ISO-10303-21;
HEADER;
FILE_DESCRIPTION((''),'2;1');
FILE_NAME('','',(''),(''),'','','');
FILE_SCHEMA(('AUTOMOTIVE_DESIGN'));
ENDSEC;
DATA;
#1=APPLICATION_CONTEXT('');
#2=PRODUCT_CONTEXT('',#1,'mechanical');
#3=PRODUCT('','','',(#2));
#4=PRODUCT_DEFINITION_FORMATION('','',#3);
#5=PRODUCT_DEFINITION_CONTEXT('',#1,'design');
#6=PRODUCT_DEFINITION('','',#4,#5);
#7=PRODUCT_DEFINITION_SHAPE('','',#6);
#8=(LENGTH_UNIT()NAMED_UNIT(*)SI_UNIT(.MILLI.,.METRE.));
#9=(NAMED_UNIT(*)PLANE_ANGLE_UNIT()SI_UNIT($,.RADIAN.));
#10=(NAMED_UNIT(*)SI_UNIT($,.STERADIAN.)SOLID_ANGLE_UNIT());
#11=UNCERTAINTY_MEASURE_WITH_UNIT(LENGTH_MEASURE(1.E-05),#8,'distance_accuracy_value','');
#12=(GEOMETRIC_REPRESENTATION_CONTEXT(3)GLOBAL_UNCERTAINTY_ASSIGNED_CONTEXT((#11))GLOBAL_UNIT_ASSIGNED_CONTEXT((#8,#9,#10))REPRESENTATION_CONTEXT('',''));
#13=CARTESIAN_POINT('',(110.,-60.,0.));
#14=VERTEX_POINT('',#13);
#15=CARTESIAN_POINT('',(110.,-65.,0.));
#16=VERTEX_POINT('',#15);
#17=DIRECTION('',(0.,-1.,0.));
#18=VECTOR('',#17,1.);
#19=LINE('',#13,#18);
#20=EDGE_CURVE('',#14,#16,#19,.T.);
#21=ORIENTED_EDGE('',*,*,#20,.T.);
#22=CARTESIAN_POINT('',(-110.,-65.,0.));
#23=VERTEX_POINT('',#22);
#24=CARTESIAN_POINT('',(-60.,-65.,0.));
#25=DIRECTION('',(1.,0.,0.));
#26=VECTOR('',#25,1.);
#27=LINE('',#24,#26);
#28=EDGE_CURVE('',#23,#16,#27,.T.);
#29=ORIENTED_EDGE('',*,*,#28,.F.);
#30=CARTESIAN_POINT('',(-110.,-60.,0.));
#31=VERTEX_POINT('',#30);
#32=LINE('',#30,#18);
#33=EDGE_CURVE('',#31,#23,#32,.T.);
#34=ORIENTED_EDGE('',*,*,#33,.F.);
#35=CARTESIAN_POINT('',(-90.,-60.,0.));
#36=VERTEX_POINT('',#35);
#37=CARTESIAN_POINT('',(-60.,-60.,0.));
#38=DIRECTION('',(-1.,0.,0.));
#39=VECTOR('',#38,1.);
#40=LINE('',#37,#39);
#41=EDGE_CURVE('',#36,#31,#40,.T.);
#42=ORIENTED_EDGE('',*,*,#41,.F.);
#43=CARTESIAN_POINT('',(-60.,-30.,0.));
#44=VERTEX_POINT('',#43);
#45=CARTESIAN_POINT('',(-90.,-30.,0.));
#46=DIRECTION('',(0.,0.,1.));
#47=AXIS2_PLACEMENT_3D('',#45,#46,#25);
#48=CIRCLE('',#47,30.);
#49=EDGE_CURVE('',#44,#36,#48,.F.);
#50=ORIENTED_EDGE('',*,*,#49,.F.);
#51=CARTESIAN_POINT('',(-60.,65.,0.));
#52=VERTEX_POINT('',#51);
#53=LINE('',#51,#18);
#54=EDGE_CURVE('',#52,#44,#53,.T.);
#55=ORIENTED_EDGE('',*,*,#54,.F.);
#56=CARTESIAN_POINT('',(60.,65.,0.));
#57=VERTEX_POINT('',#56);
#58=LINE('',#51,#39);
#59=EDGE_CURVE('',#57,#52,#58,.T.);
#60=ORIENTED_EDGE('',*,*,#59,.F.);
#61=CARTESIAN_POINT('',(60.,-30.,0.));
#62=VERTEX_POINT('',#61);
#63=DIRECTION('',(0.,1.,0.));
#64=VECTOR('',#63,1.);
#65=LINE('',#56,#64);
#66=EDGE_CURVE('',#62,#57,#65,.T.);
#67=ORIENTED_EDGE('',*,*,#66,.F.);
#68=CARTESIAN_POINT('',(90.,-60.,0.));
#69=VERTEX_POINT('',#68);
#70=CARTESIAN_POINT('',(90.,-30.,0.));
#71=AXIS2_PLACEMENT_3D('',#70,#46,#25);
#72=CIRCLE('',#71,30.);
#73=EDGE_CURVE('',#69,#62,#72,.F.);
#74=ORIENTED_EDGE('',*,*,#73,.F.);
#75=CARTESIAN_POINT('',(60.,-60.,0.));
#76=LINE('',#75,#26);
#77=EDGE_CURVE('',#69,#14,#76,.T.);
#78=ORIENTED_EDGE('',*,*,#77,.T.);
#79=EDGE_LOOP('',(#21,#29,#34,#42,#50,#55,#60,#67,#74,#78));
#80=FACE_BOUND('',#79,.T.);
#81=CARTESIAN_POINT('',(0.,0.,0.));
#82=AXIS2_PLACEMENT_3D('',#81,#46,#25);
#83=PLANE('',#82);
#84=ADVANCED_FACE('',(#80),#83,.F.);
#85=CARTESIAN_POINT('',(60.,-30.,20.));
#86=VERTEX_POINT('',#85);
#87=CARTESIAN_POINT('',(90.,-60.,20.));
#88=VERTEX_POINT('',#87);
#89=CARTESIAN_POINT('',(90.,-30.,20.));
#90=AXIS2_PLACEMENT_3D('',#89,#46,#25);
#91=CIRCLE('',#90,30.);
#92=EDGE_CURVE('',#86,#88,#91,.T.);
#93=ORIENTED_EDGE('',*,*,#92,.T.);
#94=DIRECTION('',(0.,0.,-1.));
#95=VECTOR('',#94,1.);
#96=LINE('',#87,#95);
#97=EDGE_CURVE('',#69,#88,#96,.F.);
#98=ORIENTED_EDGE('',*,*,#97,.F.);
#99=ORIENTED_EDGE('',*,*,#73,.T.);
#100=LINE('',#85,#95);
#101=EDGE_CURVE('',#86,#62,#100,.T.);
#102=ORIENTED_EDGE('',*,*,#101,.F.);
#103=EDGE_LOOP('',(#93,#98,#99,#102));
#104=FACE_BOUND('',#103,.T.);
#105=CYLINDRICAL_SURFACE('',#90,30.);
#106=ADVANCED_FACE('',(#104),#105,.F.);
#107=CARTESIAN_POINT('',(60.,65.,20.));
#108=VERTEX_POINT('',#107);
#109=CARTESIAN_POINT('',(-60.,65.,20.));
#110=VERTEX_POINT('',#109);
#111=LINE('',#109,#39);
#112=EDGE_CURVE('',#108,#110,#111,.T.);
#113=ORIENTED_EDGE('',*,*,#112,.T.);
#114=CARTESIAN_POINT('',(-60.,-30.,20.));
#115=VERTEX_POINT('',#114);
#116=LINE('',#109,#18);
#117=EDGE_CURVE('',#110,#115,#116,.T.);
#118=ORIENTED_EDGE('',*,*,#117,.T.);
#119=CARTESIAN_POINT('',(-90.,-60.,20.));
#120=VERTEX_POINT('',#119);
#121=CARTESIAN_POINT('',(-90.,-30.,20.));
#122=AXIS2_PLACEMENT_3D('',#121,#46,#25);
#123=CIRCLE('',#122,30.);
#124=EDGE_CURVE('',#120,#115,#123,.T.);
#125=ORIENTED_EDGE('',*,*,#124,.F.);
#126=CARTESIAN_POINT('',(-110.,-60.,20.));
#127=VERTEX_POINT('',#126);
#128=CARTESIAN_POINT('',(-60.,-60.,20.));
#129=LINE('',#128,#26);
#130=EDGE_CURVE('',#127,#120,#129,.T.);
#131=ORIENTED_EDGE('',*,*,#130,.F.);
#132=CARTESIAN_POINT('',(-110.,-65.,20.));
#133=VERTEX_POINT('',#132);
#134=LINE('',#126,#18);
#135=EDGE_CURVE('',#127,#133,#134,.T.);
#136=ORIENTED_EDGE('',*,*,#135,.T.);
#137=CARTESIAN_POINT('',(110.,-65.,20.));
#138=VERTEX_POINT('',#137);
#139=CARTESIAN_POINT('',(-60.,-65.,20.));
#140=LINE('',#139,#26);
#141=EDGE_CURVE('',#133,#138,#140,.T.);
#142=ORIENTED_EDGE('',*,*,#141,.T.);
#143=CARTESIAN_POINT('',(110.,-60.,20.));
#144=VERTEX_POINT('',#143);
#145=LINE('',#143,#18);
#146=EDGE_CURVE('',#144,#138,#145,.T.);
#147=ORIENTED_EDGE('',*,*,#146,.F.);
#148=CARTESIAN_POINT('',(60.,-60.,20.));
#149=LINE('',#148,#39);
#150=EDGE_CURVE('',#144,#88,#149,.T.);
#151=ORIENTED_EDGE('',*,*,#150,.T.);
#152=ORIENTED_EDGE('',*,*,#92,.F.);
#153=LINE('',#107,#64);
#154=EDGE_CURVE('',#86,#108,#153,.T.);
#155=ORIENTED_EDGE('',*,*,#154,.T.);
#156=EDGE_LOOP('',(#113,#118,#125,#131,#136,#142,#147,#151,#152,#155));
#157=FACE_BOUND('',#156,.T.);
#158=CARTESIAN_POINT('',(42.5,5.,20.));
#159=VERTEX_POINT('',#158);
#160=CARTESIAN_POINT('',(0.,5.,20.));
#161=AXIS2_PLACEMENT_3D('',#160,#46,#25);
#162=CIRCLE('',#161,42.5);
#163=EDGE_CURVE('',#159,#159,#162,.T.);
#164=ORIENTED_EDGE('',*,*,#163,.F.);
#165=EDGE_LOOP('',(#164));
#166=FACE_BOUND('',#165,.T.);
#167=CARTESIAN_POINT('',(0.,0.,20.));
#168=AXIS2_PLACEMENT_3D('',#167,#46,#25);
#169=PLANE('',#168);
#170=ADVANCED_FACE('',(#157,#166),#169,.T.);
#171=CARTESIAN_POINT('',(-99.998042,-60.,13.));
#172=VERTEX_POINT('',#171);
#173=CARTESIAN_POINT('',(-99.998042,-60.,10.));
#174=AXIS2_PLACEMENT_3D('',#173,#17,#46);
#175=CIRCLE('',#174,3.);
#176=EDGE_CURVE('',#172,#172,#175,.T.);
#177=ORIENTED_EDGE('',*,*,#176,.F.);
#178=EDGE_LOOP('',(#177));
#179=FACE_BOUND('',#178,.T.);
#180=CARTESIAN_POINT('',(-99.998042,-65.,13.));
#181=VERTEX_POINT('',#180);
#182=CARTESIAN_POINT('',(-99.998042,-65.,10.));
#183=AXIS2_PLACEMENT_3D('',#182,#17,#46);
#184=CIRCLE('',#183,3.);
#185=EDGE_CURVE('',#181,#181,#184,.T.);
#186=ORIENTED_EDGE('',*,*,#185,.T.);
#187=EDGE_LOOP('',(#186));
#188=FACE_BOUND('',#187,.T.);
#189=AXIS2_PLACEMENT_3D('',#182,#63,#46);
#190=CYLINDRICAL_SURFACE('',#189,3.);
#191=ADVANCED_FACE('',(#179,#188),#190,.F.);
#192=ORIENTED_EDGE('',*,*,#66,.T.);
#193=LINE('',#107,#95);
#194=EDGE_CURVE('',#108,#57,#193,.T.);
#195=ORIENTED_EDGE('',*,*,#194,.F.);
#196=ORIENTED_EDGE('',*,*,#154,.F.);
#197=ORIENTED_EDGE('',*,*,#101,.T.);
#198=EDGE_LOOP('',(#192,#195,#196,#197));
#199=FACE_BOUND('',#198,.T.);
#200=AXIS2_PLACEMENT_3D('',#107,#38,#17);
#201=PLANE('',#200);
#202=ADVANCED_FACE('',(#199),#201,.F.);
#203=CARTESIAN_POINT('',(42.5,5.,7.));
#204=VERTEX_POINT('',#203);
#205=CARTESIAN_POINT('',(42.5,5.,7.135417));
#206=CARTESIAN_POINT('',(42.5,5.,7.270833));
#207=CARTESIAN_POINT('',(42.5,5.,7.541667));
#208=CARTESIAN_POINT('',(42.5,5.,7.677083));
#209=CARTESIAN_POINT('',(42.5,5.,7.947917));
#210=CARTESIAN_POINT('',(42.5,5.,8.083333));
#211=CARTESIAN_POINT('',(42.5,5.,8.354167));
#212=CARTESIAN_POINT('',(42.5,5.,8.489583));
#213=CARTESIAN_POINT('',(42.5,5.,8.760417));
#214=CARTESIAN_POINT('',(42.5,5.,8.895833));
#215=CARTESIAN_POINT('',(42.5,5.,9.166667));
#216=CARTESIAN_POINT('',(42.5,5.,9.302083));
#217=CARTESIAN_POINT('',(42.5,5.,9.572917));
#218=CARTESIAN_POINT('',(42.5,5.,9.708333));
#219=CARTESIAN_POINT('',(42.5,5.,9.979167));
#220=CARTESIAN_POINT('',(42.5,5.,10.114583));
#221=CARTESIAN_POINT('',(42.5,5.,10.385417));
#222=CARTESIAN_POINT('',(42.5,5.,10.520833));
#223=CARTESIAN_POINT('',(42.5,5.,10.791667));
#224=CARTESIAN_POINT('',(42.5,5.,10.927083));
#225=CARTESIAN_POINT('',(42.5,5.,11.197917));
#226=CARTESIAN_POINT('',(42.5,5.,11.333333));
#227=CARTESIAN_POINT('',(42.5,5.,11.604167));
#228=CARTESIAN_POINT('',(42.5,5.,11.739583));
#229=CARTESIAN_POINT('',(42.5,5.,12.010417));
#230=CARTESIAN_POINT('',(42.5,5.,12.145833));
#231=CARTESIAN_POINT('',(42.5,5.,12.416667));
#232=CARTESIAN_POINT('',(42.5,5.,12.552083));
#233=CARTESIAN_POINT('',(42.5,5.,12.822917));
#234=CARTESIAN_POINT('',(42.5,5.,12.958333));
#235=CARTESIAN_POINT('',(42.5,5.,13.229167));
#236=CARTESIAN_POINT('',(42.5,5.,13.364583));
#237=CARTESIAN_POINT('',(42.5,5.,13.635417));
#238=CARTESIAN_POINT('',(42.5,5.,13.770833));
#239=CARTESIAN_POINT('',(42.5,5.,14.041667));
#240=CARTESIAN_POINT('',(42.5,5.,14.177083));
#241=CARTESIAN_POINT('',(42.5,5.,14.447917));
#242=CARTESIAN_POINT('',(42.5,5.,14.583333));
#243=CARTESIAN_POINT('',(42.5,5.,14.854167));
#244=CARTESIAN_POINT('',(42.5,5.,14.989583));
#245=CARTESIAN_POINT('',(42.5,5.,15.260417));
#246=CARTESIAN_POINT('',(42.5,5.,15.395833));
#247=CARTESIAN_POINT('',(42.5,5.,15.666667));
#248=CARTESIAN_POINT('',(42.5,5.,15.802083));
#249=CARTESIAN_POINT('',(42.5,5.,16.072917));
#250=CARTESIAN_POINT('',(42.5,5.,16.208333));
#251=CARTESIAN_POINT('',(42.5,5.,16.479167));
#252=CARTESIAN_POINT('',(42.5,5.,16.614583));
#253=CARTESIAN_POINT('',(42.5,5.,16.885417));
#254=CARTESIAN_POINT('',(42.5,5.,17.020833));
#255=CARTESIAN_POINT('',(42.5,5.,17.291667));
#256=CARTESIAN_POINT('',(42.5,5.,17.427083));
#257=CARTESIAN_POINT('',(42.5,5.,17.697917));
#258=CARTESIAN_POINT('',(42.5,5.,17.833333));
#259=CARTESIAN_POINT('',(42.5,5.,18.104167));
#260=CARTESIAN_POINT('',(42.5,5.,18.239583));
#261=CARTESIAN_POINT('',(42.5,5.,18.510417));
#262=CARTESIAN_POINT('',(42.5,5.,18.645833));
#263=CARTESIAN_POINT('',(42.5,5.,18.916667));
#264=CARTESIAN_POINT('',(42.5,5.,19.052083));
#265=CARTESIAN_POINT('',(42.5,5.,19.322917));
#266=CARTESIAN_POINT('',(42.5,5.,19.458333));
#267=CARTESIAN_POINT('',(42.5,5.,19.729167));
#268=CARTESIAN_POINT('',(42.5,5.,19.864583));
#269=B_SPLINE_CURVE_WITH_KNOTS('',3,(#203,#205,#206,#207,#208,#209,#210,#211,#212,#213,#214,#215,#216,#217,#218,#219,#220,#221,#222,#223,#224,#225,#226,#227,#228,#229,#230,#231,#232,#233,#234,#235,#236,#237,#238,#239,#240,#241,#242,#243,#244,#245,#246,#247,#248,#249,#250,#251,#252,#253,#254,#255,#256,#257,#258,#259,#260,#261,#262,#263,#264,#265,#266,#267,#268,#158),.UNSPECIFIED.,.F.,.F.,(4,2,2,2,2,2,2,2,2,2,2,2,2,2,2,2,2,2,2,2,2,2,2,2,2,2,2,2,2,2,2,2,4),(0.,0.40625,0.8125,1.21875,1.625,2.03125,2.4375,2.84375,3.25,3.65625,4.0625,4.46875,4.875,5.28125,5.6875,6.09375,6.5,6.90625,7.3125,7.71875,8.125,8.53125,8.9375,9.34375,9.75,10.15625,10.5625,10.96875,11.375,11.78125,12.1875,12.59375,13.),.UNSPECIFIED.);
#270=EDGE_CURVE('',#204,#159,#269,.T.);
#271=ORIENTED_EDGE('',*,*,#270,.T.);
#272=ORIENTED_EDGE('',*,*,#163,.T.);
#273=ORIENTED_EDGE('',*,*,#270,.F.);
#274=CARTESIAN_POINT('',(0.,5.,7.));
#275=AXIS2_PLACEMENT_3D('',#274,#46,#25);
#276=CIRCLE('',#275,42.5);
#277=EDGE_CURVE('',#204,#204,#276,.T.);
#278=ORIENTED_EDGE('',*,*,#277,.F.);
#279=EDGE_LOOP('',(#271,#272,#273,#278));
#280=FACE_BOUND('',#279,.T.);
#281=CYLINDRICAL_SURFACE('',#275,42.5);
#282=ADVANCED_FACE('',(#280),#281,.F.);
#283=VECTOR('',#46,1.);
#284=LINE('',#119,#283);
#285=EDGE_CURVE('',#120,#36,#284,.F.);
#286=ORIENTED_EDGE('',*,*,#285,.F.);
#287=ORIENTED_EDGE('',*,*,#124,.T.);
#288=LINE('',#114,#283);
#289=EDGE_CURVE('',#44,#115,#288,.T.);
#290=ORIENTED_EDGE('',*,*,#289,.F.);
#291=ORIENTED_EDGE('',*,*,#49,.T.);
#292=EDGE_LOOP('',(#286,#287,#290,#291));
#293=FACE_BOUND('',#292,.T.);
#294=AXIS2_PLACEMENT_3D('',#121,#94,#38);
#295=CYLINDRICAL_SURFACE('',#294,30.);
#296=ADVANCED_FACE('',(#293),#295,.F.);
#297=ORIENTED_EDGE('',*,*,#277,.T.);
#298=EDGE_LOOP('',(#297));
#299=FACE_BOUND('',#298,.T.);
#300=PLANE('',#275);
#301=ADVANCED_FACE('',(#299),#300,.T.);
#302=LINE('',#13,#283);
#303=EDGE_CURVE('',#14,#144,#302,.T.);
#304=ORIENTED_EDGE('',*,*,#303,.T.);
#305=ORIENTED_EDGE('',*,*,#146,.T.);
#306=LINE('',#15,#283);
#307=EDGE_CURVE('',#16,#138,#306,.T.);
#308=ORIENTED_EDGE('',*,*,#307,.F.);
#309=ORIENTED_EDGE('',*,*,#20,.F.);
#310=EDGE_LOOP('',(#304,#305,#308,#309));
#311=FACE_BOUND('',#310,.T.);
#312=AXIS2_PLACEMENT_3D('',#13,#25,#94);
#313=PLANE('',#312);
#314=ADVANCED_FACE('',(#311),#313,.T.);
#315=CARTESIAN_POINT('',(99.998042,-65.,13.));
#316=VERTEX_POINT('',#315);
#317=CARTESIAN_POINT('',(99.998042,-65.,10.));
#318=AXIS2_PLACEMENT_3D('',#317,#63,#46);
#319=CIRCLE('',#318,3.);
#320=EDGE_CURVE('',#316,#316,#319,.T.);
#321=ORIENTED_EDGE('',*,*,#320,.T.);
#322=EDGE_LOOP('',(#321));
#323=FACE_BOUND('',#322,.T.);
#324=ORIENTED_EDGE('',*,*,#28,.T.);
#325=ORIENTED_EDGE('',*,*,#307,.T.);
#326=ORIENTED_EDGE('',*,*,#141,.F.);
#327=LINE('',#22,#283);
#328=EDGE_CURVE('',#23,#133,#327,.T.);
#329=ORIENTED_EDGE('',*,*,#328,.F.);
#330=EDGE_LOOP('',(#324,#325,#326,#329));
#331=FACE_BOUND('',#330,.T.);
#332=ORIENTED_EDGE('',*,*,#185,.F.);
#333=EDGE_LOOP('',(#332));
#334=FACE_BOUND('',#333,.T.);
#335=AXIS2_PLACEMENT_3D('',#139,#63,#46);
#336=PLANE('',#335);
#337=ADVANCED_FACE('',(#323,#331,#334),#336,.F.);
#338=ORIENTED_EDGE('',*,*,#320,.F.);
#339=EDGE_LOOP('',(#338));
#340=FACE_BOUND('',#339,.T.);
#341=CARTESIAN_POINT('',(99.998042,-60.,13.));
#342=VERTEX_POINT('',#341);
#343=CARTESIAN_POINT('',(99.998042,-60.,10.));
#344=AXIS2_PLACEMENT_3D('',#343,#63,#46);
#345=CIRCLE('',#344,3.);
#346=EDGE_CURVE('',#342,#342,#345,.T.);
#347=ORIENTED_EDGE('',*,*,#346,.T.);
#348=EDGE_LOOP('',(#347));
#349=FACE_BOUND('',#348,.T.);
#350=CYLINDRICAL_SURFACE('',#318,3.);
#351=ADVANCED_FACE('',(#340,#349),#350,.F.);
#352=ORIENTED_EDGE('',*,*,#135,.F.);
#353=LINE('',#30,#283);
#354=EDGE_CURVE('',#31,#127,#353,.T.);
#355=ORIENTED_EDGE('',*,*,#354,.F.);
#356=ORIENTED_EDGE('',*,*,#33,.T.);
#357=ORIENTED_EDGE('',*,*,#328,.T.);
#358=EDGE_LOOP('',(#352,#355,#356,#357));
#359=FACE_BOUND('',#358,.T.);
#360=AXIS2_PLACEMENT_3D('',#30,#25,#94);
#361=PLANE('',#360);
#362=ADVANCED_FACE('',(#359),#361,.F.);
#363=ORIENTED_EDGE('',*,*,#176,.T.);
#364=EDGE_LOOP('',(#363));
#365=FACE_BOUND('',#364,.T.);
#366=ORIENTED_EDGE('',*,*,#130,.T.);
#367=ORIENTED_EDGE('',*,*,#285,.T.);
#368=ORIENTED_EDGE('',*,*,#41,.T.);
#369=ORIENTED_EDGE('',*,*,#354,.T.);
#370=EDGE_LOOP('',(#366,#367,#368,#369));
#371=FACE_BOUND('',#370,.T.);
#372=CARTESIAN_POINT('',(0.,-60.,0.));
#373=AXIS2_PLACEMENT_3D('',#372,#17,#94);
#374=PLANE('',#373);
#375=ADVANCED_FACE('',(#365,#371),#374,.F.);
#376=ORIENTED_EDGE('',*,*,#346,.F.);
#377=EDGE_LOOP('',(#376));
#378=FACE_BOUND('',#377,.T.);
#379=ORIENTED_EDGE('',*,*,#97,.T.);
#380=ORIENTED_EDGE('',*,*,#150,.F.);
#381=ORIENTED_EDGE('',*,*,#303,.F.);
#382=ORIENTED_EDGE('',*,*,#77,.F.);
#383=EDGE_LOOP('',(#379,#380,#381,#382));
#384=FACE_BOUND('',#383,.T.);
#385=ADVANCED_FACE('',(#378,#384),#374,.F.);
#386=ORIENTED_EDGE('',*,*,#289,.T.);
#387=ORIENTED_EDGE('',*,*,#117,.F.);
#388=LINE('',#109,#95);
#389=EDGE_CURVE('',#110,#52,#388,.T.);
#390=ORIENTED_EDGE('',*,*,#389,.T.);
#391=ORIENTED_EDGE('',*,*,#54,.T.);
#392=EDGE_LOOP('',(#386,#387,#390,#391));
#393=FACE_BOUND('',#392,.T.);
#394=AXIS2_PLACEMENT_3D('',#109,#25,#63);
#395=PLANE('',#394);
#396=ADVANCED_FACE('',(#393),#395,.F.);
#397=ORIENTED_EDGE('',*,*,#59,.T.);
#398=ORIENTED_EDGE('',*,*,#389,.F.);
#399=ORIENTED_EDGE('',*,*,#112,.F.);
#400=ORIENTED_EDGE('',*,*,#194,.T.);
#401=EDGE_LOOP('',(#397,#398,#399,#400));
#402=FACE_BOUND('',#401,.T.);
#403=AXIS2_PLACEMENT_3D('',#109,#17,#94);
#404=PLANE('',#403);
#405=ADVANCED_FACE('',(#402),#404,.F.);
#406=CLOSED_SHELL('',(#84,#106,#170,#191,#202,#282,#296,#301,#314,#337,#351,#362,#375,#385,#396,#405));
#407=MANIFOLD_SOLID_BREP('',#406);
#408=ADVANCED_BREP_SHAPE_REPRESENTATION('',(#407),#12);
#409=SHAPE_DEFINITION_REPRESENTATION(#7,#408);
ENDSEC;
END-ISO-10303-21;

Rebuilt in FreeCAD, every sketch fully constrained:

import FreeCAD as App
import Part
import Sketcher
from FreeCAD import Vector
Q = App.Units.Quantity


def edges_at(feature, points):
    """Names of the edges that pass closest to the given points."""
    edges = feature.Shape.Edges
    near = lambda p: min(range(len(edges)), key=lambda i: edges[i].distToShape(Part.Vertex(*p))[0])
    return sorted({f"Edge{near(p) + 1}" for p in points})

doc = App.newDocument("Part")
body = doc.addObject("PartDesign::Body", "Body")

# Sketch on XY plane
sketch1 = doc.addObject("Sketcher::SketchObject", "Sketch")
body.addObject(sketch1)
sketch1.AttachmentSupport = (doc.XY_Plane, [""])
sketch1.MapMode = "FlatFace"
sketch1.addGeometry(Part.LineSegment(Vector(-60, 65, 0), Vector(-60, -65, 0)), False)
sketch1.addGeometry(Part.LineSegment(Vector(-60, -65, 0), Vector(60, -65, 0)), False)
sketch1.addGeometry(Part.LineSegment(Vector(60, -65, 0), Vector(60, 65, 0)), False)
sketch1.addGeometry(Part.LineSegment(Vector(60, 65, 0), Vector(-60, 65, 0)), False)
sketch1.addConstraint(Sketcher.Constraint("Coincident", 0, 2, 1, 1))
sketch1.addConstraint(Sketcher.Constraint("Coincident", 1, 2, 2, 1))
sketch1.addConstraint(Sketcher.Constraint("Coincident", 2, 2, 3, 1))
sketch1.addConstraint(Sketcher.Constraint("Coincident", 3, 2, 0, 1))
sketch1.addConstraint(Sketcher.Constraint("Vertical", 0))
sketch1.addConstraint(Sketcher.Constraint("Horizontal", 1))
sketch1.addConstraint(Sketcher.Constraint("Vertical", 2))
sketch1.addConstraint(Sketcher.Constraint("Horizontal", 3))
sketch1.addConstraint(Sketcher.Constraint("Symmetric", 0, 2, 2, 2, -1, 1))
sketch1.addConstraint(Sketcher.Constraint("DistanceX", 1, 1, 1, 2, Q("120 mm")))
sketch1.addConstraint(Sketcher.Constraint("DistanceY", 0, 2, 0, 1, Q("130 mm")))
pad1 = doc.addObject("PartDesign::Pad", "Pad")
body.addObject(pad1)
pad1.Profile = sketch1
pad1.Length = 20

# Sketch on XY plane
sketch2 = doc.addObject("Sketcher::SketchObject", "Sketch001")
body.addObject(sketch2)
sketch2.AttachmentSupport = (doc.XY_Plane, [""])
sketch2.MapMode = "FlatFace"
sketch2.AttachmentOffset = App.Placement(Vector(0, 0, 20), App.Rotation())
sketch2.addGeometry(Part.Circle(Vector(0, 5, 0), Vector(0, 0, 1), 42), False)
sketch2.addConstraint(Sketcher.Constraint("PointOnObject", 0, 3, -2))
sketch2.addConstraint(Sketcher.Constraint("Diameter", 0, Q("85 mm")))
sketch2.addConstraint(Sketcher.Constraint("DistanceY", -1, 1, 0, 3, Q("5 mm")))
pocket1 = doc.addObject("PartDesign::Pocket", "Pocket")
body.addObject(pocket1)
pocket1.Profile = sketch2
pocket1.Length = 13

# Sketch on XZ plane
sketch3 = doc.addObject("Sketcher::SketchObject", "Sketch002")
body.addObject(sketch3)
sketch3.AttachmentSupport = (doc.XZ_Plane, [""])
sketch3.MapMode = "FlatFace"
sketch3.AttachmentOffset = App.Placement(Vector(0, 0, 65), App.Rotation())
sketch3.addGeometry(Part.LineSegment(Vector(60, 20, 0), Vector(60, 0, 0)), False)
sketch3.addGeometry(Part.LineSegment(Vector(60, 0, 0), Vector(110, 0, 0)), False)
sketch3.addGeometry(Part.LineSegment(Vector(110, 0, 0), Vector(110, 20, 0)), False)
sketch3.addGeometry(Part.LineSegment(Vector(110, 20, 0), Vector(60, 20, 0)), False)
sketch3.addConstraint(Sketcher.Constraint("Coincident", 0, 2, 1, 1))
sketch3.addConstraint(Sketcher.Constraint("Coincident", 1, 2, 2, 1))
sketch3.addConstraint(Sketcher.Constraint("Coincident", 2, 2, 3, 1))
sketch3.addConstraint(Sketcher.Constraint("Coincident", 3, 2, 0, 1))
sketch3.addConstraint(Sketcher.Constraint("Vertical", 0))
sketch3.addConstraint(Sketcher.Constraint("Horizontal", 1))
sketch3.addConstraint(Sketcher.Constraint("Vertical", 2))
sketch3.addConstraint(Sketcher.Constraint("Horizontal", 3))
sketch3.addConstraint(Sketcher.Constraint("PointOnObject", 0, 2, -1))
sketch3.addConstraint(Sketcher.Constraint("DistanceX", 1, 1, 1, 2, Q("50 mm")))
sketch3.addConstraint(Sketcher.Constraint("DistanceY", 0, 2, 0, 1, Q("20 mm")))
sketch3.addConstraint(Sketcher.Constraint("DistanceX", -1, 1, 0, 2, Q("60 mm")))
pad2 = doc.addObject("PartDesign::Pad", "Pad001")
body.addObject(pad2)
pad2.Profile = sketch3
pad2.Length = 5
pad2.Reversed = True
doc.recompute()

fillet = doc.addObject("PartDesign::Fillet", "Fillet")
body.addObject(fillet)
fillet.Base = (pad2, edges_at(pad2, [(60, -60, 10)]))
fillet.Radius = 30
doc.recompute()

mirrored = doc.addObject("PartDesign::Mirrored", "Mirrored")
body.addObject(mirrored)
mirrored.Originals = [pad2]
mirrored.MirrorPlane = (doc.YZ_Plane, [""])
body.Tip = mirrored
doc.recompute()

fillet2 = doc.addObject("PartDesign::Fillet", "Fillet001")
body.addObject(fillet2)
fillet2.Base = (mirrored, edges_at(mirrored, [(-60, -60, 10)]))
fillet2.Radius = 30

# Sketch on XZ plane
sketch4 = doc.addObject("Sketcher::SketchObject", "Sketch003")
body.addObject(sketch4)
sketch4.AttachmentSupport = (doc.XZ_Plane, [""])
sketch4.MapMode = "FlatFace"
sketch4.AttachmentOffset = App.Placement(Vector(0, 0, 60), App.Rotation())
sketch4.addGeometry(Part.Circle(Vector(100, 10, 0), Vector(0, 0, 1), 3), False)
sketch4.addConstraint(Sketcher.Constraint("Diameter", 0, Q("6 mm")))
sketch4.addConstraint(Sketcher.Constraint("DistanceY", -1, 1, 0, 3, Q("10 mm")))
sketch4.addConstraint(Sketcher.Constraint("DistanceX", -1, 1, 0, 3, Q("99.998042 mm")))
pocket2 = doc.addObject("PartDesign::Pocket", "Pocket001")
body.addObject(pocket2)
pocket2.Profile = sketch4
pocket2.Type = "ThroughAll"
pocket2.Reversed = True
doc.recompute()

mirrored2 = doc.addObject("PartDesign::Mirrored", "Mirrored001")
body.addObject(mirrored2)
mirrored2.Originals = [pocket2]
mirrored2.MirrorPlane = (doc.YZ_Plane, [""])
body.Tip = mirrored2

doc.recompute()
